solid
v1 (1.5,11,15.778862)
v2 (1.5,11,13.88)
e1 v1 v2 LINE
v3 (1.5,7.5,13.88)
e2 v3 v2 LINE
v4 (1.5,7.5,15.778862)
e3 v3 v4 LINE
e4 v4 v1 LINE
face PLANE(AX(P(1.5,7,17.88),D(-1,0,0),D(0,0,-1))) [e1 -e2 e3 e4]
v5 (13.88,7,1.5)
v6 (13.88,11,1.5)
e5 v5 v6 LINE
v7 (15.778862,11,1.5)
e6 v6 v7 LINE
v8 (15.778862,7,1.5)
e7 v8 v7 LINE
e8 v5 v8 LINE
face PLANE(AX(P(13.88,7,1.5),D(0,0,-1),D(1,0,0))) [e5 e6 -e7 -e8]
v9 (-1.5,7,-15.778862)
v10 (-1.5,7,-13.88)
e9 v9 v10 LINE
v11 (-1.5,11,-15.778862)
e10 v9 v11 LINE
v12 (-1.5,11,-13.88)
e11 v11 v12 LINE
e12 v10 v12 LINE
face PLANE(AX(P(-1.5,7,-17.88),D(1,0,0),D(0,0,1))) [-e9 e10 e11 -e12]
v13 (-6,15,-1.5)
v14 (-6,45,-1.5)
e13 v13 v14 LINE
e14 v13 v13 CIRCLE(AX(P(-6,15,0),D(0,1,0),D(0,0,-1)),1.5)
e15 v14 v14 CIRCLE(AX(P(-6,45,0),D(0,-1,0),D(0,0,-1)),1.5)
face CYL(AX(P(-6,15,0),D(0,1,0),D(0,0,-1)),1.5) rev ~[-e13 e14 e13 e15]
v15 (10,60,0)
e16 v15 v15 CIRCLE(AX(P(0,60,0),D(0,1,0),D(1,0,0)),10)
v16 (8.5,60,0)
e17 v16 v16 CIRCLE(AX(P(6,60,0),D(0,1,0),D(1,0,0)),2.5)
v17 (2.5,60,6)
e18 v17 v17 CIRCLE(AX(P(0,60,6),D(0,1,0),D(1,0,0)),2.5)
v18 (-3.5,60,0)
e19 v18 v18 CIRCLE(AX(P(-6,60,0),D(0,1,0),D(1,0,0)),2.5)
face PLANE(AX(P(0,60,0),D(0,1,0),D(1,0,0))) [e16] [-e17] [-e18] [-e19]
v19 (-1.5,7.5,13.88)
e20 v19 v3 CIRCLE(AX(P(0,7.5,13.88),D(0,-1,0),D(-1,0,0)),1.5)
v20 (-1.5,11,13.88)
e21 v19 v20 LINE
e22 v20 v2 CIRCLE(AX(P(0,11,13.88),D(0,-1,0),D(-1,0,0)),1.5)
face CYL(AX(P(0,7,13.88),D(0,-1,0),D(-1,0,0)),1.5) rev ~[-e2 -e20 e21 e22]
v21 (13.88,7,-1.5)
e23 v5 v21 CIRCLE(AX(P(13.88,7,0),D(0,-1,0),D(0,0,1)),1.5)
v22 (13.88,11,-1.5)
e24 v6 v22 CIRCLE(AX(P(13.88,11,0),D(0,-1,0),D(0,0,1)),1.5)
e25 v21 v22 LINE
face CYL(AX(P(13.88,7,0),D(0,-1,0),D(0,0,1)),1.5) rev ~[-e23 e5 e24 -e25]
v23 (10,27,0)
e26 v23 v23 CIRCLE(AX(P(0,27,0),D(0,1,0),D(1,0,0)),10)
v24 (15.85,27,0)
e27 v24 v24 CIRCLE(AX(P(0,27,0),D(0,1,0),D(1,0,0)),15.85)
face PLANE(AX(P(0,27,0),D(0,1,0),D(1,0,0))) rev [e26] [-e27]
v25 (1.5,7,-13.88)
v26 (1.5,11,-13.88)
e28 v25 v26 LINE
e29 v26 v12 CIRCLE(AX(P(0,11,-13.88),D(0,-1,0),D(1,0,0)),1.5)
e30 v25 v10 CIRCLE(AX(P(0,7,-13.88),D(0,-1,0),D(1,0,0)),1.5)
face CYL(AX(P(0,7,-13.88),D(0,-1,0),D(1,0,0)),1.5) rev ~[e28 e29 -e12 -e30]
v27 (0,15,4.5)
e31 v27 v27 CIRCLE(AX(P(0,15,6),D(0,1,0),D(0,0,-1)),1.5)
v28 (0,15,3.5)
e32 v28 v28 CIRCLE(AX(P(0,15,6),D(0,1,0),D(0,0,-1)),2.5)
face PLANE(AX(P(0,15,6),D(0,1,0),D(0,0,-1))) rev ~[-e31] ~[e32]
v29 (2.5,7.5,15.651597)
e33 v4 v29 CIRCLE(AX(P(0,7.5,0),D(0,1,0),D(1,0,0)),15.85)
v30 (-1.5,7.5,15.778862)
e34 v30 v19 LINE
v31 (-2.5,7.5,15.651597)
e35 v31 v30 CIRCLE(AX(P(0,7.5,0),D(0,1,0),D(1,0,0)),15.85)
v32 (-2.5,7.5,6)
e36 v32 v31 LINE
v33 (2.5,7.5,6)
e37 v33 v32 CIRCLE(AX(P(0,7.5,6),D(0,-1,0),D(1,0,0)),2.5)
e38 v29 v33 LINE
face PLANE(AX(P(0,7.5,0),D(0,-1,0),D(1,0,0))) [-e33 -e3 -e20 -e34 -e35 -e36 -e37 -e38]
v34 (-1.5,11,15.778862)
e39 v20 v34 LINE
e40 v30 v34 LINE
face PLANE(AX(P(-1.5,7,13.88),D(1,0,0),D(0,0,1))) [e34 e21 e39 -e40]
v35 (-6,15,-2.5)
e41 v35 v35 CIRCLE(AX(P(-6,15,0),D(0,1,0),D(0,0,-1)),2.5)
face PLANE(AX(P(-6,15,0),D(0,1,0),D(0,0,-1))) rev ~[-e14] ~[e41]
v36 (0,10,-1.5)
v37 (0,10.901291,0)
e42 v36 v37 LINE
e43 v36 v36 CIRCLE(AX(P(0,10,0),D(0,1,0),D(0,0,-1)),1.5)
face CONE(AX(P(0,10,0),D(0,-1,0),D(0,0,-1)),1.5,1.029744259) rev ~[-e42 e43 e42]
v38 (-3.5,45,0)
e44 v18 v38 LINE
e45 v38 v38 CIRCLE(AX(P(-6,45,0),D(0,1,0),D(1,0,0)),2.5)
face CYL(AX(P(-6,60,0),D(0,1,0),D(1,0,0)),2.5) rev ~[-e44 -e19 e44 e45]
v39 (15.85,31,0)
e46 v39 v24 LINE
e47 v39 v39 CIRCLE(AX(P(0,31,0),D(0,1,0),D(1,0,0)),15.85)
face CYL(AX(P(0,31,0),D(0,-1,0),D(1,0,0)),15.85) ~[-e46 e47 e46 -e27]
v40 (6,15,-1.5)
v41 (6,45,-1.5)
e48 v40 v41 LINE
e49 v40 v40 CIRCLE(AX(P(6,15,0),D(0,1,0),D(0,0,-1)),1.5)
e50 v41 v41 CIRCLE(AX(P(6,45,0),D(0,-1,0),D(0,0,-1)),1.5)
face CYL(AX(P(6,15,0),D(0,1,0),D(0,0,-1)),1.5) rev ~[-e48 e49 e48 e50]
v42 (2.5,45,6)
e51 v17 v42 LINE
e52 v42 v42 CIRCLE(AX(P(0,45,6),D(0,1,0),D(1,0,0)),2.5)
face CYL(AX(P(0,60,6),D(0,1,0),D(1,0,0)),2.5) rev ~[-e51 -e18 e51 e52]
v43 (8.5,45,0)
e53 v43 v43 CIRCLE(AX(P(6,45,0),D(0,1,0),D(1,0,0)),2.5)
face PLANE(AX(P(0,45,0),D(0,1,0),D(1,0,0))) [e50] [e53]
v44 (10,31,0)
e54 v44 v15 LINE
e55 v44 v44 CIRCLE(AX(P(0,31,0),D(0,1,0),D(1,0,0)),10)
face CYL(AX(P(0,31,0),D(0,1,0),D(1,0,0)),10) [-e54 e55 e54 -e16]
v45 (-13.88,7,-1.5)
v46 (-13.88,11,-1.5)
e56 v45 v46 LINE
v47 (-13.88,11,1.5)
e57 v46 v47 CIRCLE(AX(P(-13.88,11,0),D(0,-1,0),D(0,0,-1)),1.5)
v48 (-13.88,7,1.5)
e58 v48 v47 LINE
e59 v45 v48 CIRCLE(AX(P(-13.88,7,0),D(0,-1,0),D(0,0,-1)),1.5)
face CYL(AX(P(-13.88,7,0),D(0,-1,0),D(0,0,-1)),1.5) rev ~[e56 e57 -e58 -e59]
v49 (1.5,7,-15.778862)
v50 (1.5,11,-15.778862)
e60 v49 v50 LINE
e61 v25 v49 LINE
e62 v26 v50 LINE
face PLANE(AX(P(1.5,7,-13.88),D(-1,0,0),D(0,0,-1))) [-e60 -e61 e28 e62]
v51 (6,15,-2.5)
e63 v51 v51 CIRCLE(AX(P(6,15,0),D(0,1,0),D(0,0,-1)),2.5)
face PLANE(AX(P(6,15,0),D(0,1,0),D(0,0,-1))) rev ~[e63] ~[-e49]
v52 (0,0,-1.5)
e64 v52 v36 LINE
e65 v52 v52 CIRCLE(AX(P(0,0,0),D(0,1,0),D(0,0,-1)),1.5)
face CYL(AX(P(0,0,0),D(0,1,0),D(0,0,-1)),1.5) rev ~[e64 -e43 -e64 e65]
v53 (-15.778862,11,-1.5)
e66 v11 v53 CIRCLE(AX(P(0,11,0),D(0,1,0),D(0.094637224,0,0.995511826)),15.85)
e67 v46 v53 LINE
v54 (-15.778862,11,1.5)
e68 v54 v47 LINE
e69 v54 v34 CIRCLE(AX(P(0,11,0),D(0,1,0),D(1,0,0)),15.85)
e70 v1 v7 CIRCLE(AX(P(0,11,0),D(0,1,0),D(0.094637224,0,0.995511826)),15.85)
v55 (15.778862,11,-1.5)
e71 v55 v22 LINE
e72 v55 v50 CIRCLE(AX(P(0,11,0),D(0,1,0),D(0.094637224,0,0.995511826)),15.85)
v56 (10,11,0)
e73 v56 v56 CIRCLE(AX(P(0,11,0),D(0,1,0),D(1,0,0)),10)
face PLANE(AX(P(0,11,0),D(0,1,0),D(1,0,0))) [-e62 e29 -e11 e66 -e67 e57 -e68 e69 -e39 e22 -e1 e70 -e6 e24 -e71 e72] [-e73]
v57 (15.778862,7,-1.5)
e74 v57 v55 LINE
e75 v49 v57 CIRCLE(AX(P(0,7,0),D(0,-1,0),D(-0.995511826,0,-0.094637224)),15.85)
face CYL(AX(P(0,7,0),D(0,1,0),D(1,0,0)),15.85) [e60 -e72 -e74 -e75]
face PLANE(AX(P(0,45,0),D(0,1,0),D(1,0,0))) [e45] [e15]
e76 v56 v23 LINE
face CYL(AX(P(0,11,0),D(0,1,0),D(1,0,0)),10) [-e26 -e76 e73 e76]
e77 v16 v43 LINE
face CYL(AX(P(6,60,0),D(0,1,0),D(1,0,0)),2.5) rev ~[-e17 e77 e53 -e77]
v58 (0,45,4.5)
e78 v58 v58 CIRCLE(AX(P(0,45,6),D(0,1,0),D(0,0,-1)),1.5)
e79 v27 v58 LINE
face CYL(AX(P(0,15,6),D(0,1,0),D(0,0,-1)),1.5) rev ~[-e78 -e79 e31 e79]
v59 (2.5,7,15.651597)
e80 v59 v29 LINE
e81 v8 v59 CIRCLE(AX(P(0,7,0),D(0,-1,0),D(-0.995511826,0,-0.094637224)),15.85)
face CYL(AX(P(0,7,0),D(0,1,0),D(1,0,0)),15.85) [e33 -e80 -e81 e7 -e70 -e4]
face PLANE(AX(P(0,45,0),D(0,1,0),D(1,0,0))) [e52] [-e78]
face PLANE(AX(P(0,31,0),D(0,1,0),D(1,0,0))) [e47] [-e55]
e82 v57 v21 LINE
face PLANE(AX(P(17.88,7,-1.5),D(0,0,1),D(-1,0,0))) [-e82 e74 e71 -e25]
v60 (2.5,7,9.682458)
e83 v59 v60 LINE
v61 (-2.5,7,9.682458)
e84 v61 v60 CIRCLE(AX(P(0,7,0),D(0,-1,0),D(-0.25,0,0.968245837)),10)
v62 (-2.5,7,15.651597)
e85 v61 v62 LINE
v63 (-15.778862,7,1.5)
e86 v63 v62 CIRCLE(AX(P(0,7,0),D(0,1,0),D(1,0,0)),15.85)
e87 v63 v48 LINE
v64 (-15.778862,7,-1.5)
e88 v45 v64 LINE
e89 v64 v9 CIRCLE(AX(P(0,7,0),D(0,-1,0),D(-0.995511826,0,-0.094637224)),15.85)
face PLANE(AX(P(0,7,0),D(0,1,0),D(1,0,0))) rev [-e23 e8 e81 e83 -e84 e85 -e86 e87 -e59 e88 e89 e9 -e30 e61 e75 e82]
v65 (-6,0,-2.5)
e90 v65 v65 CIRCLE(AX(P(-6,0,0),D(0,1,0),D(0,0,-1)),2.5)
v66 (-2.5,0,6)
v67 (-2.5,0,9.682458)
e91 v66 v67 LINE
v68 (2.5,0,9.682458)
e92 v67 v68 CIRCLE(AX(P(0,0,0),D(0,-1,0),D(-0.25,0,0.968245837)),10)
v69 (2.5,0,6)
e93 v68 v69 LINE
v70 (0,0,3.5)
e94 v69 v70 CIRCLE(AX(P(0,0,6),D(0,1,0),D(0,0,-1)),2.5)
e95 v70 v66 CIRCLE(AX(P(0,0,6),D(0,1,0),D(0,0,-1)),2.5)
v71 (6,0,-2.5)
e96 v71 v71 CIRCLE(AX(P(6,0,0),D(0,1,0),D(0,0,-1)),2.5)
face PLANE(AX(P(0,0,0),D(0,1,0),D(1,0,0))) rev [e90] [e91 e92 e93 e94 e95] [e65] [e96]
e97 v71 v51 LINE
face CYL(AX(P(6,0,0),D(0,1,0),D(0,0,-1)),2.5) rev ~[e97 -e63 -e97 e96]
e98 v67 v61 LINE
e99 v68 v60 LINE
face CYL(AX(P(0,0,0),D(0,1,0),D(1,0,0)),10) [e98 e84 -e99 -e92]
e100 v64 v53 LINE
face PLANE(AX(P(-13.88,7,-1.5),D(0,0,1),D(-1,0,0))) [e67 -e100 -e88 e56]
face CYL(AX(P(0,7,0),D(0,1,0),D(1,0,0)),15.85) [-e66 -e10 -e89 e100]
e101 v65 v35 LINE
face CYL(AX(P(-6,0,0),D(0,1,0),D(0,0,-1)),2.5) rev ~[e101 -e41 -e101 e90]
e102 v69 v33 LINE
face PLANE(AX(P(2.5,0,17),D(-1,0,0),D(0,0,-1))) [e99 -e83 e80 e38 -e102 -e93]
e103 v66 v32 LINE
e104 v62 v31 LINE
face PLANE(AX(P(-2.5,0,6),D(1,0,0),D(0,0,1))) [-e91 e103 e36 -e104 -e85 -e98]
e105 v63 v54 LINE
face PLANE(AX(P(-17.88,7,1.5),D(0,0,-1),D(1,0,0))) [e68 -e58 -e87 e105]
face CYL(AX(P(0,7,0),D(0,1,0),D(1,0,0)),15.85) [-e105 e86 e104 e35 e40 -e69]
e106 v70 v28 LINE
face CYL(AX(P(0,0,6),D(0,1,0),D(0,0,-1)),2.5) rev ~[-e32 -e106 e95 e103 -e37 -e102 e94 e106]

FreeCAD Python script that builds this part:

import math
import FreeCAD as App
import Part
import Sketcher
from FreeCAD import Vector
Q = App.Units.Quantity

doc = App.newDocument("Part")
body = doc.addObject("PartDesign::Body", "Body")

sketch1 = doc.addObject("Sketcher::SketchObject", "Sketch")
body.addObject(sketch1)
sketch1.AttachmentSupport = (doc.XY_Plane, [""])
sketch1.MapMode = "FlatFace"
sketch1.addGeometry(Part.LineSegment(Vector(0, 60, 0), Vector(0, 0, 0)), False)
sketch1.addGeometry(Part.LineSegment(Vector(0, 0, 0), Vector(10, 0, 0)), False)
sketch1.addGeometry(Part.LineSegment(Vector(10, 0, 0), Vector(10, 7, 0)), False)
sketch1.addGeometry(Part.LineSegment(Vector(10, 7, 0), Vector(15.8, 7, 0)), False)
sketch1.addGeometry(Part.LineSegment(Vector(15.8, 7, 0), Vector(15.8, 11, 0)), False)
sketch1.addGeometry(Part.LineSegment(Vector(15.8, 11, 0), Vector(10, 11, 0)), False)
sketch1.addGeometry(Part.LineSegment(Vector(10, 11, 0), Vector(10, 27, 0)), False)
sketch1.addGeometry(Part.LineSegment(Vector(10, 27, 0), Vector(15.8, 27, 0)), False)
sketch1.addGeometry(Part.LineSegment(Vector(15.8, 27, 0), Vector(15.8, 31, 0)), False)
sketch1.addGeometry(Part.LineSegment(Vector(15.8, 31, 0), Vector(10, 31, 0)), False)
sketch1.addGeometry(Part.LineSegment(Vector(10, 31, 0), Vector(10, 60, 0)), False)
sketch1.addGeometry(Part.LineSegment(Vector(10, 60, 0), Vector(0, 60, 0)), False)
sketch1.addConstraint(Sketcher.Constraint("Coincident", 0, 2, 1, 1))
sketch1.addConstraint(Sketcher.Constraint("Coincident", 1, 2, 2, 1))
sketch1.addConstraint(Sketcher.Constraint("Coincident", 2, 2, 3, 1))
sketch1.addConstraint(Sketcher.Constraint("Coincident", 3, 2, 4, 1))
sketch1.addConstraint(Sketcher.Constraint("Coincident", 4, 2, 5, 1))
sketch1.addConstraint(Sketcher.Constraint("Coincident", 5, 2, 6, 1))
sketch1.addConstraint(Sketcher.Constraint("Coincident", 6, 2, 7, 1))
sketch1.addConstraint(Sketcher.Constraint("Coincident", 7, 2, 8, 1))
sketch1.addConstraint(Sketcher.Constraint("Coincident", 8, 2, 9, 1))
sketch1.addConstraint(Sketcher.Constraint("Coincident", 9, 2, 10, 1))
sketch1.addConstraint(Sketcher.Constraint("Coincident", 10, 2, 11, 1))
sketch1.addConstraint(Sketcher.Constraint("Coincident", 11, 2, 0, 1))
sketch1.addConstraint(Sketcher.Constraint("Vertical", 0))
sketch1.addConstraint(Sketcher.Constraint("Horizontal", 1))
sketch1.addConstraint(Sketcher.Constraint("Vertical", 2))
sketch1.addConstraint(Sketcher.Constraint("Horizontal", 3))
sketch1.addConstraint(Sketcher.Constraint("Vertical", 4))
sketch1.addConstraint(Sketcher.Constraint("Horizontal", 5))
sketch1.addConstraint(Sketcher.Constraint("Vertical", 6))
sketch1.addConstraint(Sketcher.Constraint("Horizontal", 7))
sketch1.addConstraint(Sketcher.Constraint("Vertical", 8))
sketch1.addConstraint(Sketcher.Constraint("Horizontal", 9))
sketch1.addConstraint(Sketcher.Constraint("Vertical", 10))
sketch1.addConstraint(Sketcher.Constraint("Horizontal", 11))
sketch1.addConstraint(Sketcher.Constraint("Coincident", 0, 2, -1, 1))
sketch1.addConstraint(Sketcher.Constraint("Vertical", 2, 2, 5, 2))
sketch1.addConstraint(Sketcher.Constraint("Vertical", 4, 2, 7, 2))
sketch1.addConstraint(Sketcher.Constraint("Vertical", 6, 2, 9, 2))
sketch1.addConstraint(Sketcher.Constraint("Equal", 4, 8))
sketch1.addConstraint(Sketcher.Constraint("DistanceY", 0, 2, 0, 1, Q("60 mm")))
sketch1.addConstraint(Sketcher.Constraint("DistanceY", 2, 1, 2, 2, Q("7 mm")))
sketch1.addConstraint(Sketcher.Constraint("DistanceY", 4, 1, 4, 2, Q("4 mm")))
sketch1.addConstraint(Sketcher.Constraint("DistanceY", 6, 1, 6, 2, Q("16 mm")))
sketch1.addConstraint(Sketcher.Constraint("DistanceX", 1, 1, 1, 2, Q("10 mm")))
sketch1.addConstraint(Sketcher.Constraint("DistanceX", 3, 1, 3, 2, Q("5.85 mm")))
revolution = doc.addObject("PartDesign::Revolution", "Revolution")
body.addObject(revolution)
revolution.Profile = sketch1
revolution.ReferenceAxis = (sketch1, ["V_Axis"])
revolution.Angle = 360

sketch2 = doc.addObject("Sketcher::SketchObject", "Sketch001")
body.addObject(sketch2)
sketch2.AttachmentSupport = (doc.XZ_Plane, [""])
sketch2.MapMode = "FlatFace"
sketch2.addGeometry(Part.Circle(Vector(6, 0, 0), Vector(0, 0, 1), 1.5), False)
sketch2.addGeometry(Part.Circle(Vector(-6, 0, 0), Vector(0, 0, 1), 1.5), False)
sketch2.addGeometry(Part.Circle(Vector(0, 6, 0), Vector(0, 0, 1), 1.5), False)
sketch2.addConstraint(Sketcher.Constraint("Equal", 0, 1))
sketch2.addConstraint(Sketcher.Constraint("Equal", 1, 2))
sketch2.addConstraint(Sketcher.Constraint("Symmetric", 0, 3, 1, 3, -1, 1))
sketch2.addConstraint(Sketcher.Constraint("PointOnObject", 0, 3, -1))
sketch2.addConstraint(Sketcher.Constraint("PointOnObject", 2, 3, -2))
sketch2.addConstraint(Sketcher.Constraint("Diameter", 0, Q("3 mm")))
sketch2.addConstraint(Sketcher.Constraint("DistanceX", -1, 1, 0, 3, Q("6 mm")))
sketch2.addConstraint(Sketcher.Constraint("DistanceY", -1, 1, 2, 3, Q("6 mm")))
doc.recompute()
hole = doc.addObject("PartDesign::Hole", "Hole")
body.addObject(hole)
hole.Profile = sketch2
hole.ThreadType = "None"
hole.Diameter = 3
hole.DepthType = "ThroughAll"
hole.HoleCutType = "Counterbore"
hole.HoleCutDiameter = 5
hole.HoleCutDepth = 15

sketch3 = doc.addObject("Sketcher::SketchObject", "Sketch002")
body.addObject(sketch3)
sketch3.AttachmentSupport = (doc.XZ_Plane, [""])
sketch3.MapMode = "FlatFace"
sketch3.AttachmentOffset = App.Placement(Vector(0, 0, -7), App.Rotation())
sketch3.addGeometry(Part.LineSegment(Vector(-13.9, 1.5, 0), Vector(-17.9, 1.5, 0)), False)
sketch3.addGeometry(Part.ArcOfCircle(Part.Circle(Vector(-17.9, 0, 0), Vector(0, 0, 1), 1.5), math.radians(90), math.radians(270)), False)
sketch3.addGeometry(Part.LineSegment(Vector(-17.9, -1.5, 0), Vector(-13.9, -1.5, 0)), False)
sketch3.addGeometry(Part.ArcOfCircle(Part.Circle(Vector(-13.9, 0, 0), Vector(0, 0, 1), 1.5), math.radians(-90), math.radians(90)), False)
sketch3.addConstraint(Sketcher.Constraint("Tangent", 0, 2, 1, 1))
sketch3.addConstraint(Sketcher.Constraint("Tangent", 1, 2, 2, 1))
sketch3.addConstraint(Sketcher.Constraint("Tangent", 2, 2, 3, 1))
sketch3.addConstraint(Sketcher.Constraint("Tangent", 3, 2, 0, 1))
sketch3.addConstraint(Sketcher.Constraint("Horizontal", 0))
sketch3.addConstraint(Sketcher.Constraint("Horizontal", 2))
sketch3.addConstraint(Sketcher.Constraint("PointOnObject", 1, 3, -1))
sketch3.addConstraint(Sketcher.Constraint("Radius", 1, Q("1.5 mm")))
sketch3.addConstraint(Sketcher.Constraint("DistanceX", 0, 2, 0, 1, Q("4 mm")))
sketch3.addConstraint(Sketcher.Constraint("DistanceX", 3, 3, -1, 1, Q("13.88 mm")))
pocket1 = doc.addObject("PartDesign::Pocket", "Pocket")
body.addObject(pocket1)
pocket1.Profile = sketch3
pocket1.Length = 4
doc.recompute()

polarpattern = doc.addObject("PartDesign::PolarPattern", "PolarPattern")
body.addObject(polarpattern)
polarpattern.Originals = [pocket1]
polarpattern.Axis = (doc.Y_Axis, [""])
polarpattern.Angle = 360
polarpattern.Occurrences = 4
body.Tip = polarpattern

sketch4 = doc.addObject("Sketcher::SketchObject", "Sketch003")
body.addObject(sketch4)
sketch4.AttachmentSupport = (doc.XZ_Plane, [""])
sketch4.MapMode = "FlatFace"
sketch4.AttachmentOffset = App.Placement(Vector(0, 0, -60), App.Rotation())
sketch4.addGeometry(Part.Circle(Vector(-6, 0, 0), Vector(0, 0, 1), 2.5), False)
sketch4.addGeometry(Part.Circle(Vector(-6, 0, 0), Vector(0, 0, 1), 1.5), False)
sketch4.addGeometry(Part.Circle(Vector(6, 0, 0), Vector(0, 0, 1), 2.5), False)
sketch4.addGeometry(Part.Circle(Vector(6, 0, 0), Vector(0, 0, 1), 1.5), False)
sketch4.addGeometry(Part.Circle(Vector(0, 6, 0), Vector(0, 0, 1), 2.5), False)
sketch4.addConstraint(Sketcher.Constraint("Coincident", 1, 3, 0, 3))
sketch4.addConstraint(Sketcher.Constraint("Coincident", 3, 3, 2, 3))
sketch4.addConstraint(Sketcher.Constraint("Equal", 0, 2))
sketch4.addConstraint(Sketcher.Constraint("Equal", 1, 3))
sketch4.addConstraint(Sketcher.Constraint("Equal", 2, 4))
sketch4.addConstraint(Sketcher.Constraint("Symmetric", 0, 3, 2, 3, -1, 1))
sketch4.addConstraint(Sketcher.Constraint("PointOnObject", 0, 3, -1))
sketch4.addConstraint(Sketcher.Constraint("PointOnObject", 4, 3, -2))
sketch4.addConstraint(Sketcher.Constraint("Diameter", 0, Q("5 mm")))
sketch4.addConstraint(Sketcher.Constraint("Diameter", 1, Q("3 mm")))
sketch4.addConstraint(Sketcher.Constraint("DistanceX", 0, 3, -1, 1, Q("6 mm")))
sketch4.addConstraint(Sketcher.Constraint("DistanceY", -1, 1, 4, 3, Q("6 mm")))
pocket2 = doc.addObject("PartDesign::Pocket", "Pocket001")
body.addObject(pocket2)
pocket2.Profile = sketch4
pocket2.Length = 15
pocket2.Reversed = True

sketch5 = doc.addObject("Sketcher::SketchObject", "Sketch004")
body.addObject(sketch5)
sketch5.AttachmentSupport = (doc.XZ_Plane, [""])
sketch5.MapMode = "FlatFace"
sketch5.addGeometry(Part.Circle(Vector(0, 0, 0), Vector(0, 0, 1), 1.5), False)
sketch5.addConstraint(Sketcher.Constraint("Coincident", 0, 3, -1, 1))
sketch5.addConstraint(Sketcher.Constraint("Diameter", 0, Q("3 mm")))
doc.recompute()
hole2 = doc.addObject("PartDesign::Hole", "Hole001")
body.addObject(hole2)
hole2.Profile = sketch5
hole2.ThreadType = "None"
hole2.Diameter = 3
hole2.DepthType = "Dimension"
hole2.Depth = 10
hole2.DrillPoint = "Angled"
hole2.DrillPointAngle = 118

sketch6 = doc.addObject("Sketcher::SketchObject", "Sketch005")
body.addObject(sketch6)
sketch6.AttachmentSupport = (doc.XZ_Plane, [""])
sketch6.MapMode = "FlatFace"
sketch6.addGeometry(Part.ArcOfCircle(Part.Circle(Vector(0, 6, 0), Vector(0, 0, 1), 2.5), math.radians(0), math.radians(180)), False)
sketch6.addGeometry(Part.LineSegment(Vector(2.5, 6, 0), Vector(2.5, 17, 0)), False)
sketch6.addGeometry(Part.ArcOfCircle(Part.Circle(Vector(0, 17, 0), Vector(0, 0, 1), 2.5), math.radians(0), math.radians(180)), False)
sketch6.addGeometry(Part.LineSegment(Vector(-2.5, 17, 0), Vector(-2.5, 6, 0)), False)
sketch6.addConstraint(Sketcher.Constraint("Tangent", 0, 1, 1, 1))
sketch6.addConstraint(Sketcher.Constraint("Tangent", 1, 2, 2, 1))
sketch6.addConstraint(Sketcher.Constraint("Tangent", 2, 2, 3, 1))
sketch6.addConstraint(Sketcher.Constraint("Tangent", 3, 2, 0, 2))
sketch6.addConstraint(Sketcher.Constraint("Vertical", 1))
sketch6.addConstraint(Sketcher.Constraint("Vertical", 3))
sketch6.addConstraint(Sketcher.Constraint("PointOnObject", 0, 3, -2))
sketch6.addConstraint(Sketcher.Constraint("DistanceY", 1, 1, 1, 2, Q("11 mm")))
sketch6.addConstraint(Sketcher.Constraint("Radius", 0, Q("2.5 mm")))
sketch6.addConstraint(Sketcher.Constraint("DistanceY", -1, 1, 0, 3, Q("6 mm")))
pocket3 = doc.addObject("PartDesign::Pocket", "Pocket002")
body.addObject(pocket3)
pocket3.Profile = sketch6
pocket3.Length = 7.5

doc.recompute()
